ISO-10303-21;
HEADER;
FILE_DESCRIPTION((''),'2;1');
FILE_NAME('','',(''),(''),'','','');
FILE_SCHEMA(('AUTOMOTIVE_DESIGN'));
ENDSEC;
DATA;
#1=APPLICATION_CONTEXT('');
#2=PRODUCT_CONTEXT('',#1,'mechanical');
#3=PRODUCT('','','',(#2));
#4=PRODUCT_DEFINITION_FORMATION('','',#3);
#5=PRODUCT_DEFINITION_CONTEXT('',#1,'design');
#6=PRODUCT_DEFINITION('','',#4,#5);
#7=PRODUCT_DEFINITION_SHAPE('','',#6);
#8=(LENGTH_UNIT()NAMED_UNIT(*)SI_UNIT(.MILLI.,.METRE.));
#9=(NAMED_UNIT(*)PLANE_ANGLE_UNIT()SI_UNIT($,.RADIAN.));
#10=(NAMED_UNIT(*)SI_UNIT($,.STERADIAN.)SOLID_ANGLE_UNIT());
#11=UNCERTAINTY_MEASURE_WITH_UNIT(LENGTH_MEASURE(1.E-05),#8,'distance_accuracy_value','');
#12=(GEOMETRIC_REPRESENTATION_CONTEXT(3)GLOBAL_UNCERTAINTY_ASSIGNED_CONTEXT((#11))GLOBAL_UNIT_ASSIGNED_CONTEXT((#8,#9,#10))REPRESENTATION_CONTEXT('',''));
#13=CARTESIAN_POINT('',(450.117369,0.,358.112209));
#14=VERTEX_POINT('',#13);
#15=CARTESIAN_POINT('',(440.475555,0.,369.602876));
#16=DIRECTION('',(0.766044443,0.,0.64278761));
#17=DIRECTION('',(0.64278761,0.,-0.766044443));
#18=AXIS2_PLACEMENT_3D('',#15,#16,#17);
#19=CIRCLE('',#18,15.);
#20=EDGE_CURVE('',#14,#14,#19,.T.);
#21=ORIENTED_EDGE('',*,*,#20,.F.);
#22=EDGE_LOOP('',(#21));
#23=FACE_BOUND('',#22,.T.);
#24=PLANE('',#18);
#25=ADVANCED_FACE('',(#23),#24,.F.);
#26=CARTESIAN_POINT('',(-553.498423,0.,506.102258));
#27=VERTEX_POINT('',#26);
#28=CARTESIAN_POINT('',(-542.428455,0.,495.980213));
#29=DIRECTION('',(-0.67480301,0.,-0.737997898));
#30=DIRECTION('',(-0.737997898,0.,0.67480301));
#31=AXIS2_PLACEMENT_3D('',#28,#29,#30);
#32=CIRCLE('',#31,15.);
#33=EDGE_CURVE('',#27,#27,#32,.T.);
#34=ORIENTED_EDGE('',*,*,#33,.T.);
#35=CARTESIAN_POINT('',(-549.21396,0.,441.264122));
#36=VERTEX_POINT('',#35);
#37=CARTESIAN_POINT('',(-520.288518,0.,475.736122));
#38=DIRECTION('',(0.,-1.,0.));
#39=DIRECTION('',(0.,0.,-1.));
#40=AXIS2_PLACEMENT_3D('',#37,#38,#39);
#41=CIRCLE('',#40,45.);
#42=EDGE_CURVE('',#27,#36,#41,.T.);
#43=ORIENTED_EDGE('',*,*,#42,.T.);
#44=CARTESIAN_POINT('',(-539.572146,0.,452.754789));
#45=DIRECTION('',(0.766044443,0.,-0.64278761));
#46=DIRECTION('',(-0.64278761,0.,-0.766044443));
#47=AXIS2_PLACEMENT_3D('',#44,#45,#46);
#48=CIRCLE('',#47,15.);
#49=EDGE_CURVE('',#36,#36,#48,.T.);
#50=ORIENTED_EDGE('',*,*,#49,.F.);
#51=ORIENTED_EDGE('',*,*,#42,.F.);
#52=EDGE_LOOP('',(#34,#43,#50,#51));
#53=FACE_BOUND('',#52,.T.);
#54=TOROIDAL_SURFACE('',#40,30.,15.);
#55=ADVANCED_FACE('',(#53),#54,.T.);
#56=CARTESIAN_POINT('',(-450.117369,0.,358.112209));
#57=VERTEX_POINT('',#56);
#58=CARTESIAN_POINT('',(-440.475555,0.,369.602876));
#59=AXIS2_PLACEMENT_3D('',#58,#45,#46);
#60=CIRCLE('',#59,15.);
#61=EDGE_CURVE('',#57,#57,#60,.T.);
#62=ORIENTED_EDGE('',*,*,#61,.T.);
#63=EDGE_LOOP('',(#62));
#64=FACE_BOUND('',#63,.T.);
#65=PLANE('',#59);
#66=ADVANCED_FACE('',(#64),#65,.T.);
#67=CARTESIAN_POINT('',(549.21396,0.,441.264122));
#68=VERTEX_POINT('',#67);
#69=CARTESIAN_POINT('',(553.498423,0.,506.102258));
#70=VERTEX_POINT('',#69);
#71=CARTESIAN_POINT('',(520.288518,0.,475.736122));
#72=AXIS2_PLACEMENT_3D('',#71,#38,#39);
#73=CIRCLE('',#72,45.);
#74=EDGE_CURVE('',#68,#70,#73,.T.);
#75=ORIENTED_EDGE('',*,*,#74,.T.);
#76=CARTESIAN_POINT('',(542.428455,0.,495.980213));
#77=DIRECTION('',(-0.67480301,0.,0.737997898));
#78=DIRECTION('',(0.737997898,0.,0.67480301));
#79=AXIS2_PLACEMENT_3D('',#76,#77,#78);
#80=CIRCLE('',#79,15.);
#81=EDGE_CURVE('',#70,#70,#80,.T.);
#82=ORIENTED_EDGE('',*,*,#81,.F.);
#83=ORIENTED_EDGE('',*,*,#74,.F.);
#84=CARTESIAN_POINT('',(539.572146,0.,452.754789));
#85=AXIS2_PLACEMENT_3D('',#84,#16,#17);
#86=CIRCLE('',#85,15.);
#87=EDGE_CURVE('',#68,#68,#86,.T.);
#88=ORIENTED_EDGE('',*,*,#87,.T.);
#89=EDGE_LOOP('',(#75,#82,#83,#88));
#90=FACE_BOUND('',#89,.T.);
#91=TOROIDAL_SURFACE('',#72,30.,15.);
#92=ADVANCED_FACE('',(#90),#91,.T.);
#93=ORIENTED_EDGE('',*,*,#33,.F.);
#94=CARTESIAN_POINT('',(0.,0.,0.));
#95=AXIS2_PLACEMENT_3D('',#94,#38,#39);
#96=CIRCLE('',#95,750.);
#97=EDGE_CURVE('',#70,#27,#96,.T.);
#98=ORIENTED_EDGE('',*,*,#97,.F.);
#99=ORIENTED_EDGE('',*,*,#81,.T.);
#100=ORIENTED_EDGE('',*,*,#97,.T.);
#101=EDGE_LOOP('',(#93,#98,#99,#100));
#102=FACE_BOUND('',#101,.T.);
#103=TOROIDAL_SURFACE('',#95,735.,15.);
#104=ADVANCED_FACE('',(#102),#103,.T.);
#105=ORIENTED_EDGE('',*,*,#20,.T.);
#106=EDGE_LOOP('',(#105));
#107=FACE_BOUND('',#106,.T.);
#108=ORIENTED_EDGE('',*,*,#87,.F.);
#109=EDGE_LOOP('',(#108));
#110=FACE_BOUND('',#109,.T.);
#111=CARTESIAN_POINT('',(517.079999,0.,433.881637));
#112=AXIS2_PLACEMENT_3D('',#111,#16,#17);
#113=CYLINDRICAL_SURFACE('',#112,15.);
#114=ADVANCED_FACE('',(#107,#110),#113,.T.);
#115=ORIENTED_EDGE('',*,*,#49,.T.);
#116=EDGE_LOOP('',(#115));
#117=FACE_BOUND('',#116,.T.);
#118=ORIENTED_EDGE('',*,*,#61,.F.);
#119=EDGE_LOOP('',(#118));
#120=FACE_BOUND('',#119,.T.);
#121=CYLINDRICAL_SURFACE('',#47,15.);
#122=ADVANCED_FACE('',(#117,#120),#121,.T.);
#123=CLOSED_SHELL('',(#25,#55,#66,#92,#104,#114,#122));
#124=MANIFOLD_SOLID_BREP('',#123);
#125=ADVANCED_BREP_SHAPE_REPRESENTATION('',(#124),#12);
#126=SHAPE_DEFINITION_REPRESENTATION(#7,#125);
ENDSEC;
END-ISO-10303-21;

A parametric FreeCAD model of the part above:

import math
import FreeCAD as App
import Part
import Sketcher
Q = App.Units.Quantity

doc = App.newDocument("Part")
body = doc.addObject("PartDesign::Body", "Body")

sketch1 = body.newObject("Sketcher::SketchObject", "Sketch")
sketch1.Placement = App.Placement(App.Vector(517.079999, 0, 433.881637), App.Rotation(App.Vector(0.64278761, 0, -0.766044443), App.Vector(0, 1, 0), App.Vector(0.766044443, 0, 0.64278761), "ZXY"))
sketch1.addGeometry(Part.Circle(App.Vector(0, 0, 0), App.Vector(0, 0, 1), 15), False)
sketch1.addConstraint([
    Sketcher.Constraint("Coincident", 0, 3, -1, 1),
    Sketcher.Constraint("Diameter", 0, Q("30 mm")),
])

sketch2 = body.newObject("Sketcher::SketchObject", "Sketch001")
sketch2.AttachmentSupport = (doc.getObject("XZ_Plane"), [""])
sketch2.MapMode = "FlatFace"
sketch2.addGeometry([
    Part.LineSegment(App.Vector(517, 434, 0), App.Vector(540, 453, 0)),
    Part.ArcOfCircle(Part.Circle(App.Vector(520, 476, 0), App.Vector(0, 0, 1), 30), math.radians(-50), math.radians(42)),
    Part.ArcOfCircle(Part.Circle(App.Vector(0, 0, 0), App.Vector(0, 0, 1), 735), math.radians(42), math.radians(138)),
    Part.ArcOfCircle(Part.Circle(App.Vector(-520, 476, 0), App.Vector(0, 0, 1), 30), math.radians(138), math.radians(230)),
    Part.LineSegment(App.Vector(-540, 453, 0), App.Vector(-517, 434, 0)),
], False)
sketch2.addConstraint([
    Sketcher.Constraint("Tangent", 0, 2, 1, 1),
    Sketcher.Constraint("Tangent", 1, 2, 2, 1),
    Sketcher.Constraint("Tangent", 2, 2, 3, 1),
    Sketcher.Constraint("Tangent", 3, 2, 4, 1),
    Sketcher.Constraint("Coincident", 2, 3, -1, 1),
    Sketcher.Constraint("Equal", 1, 3),
    Sketcher.Constraint("Symmetric", 0, 2, 3, 2, -2),
    Sketcher.Constraint("Horizontal", 0, 1, 4, 2),
    Sketcher.Constraint("Radius", 1, Q("30 mm")),
    Sketcher.Constraint("Radius", 2, Q("735 mm")),
    Sketcher.Constraint("Angle", 0, Q("40 deg")),
    Sketcher.Constraint("DistanceX", -1, 1, 0, 1, Q("517.079999 mm")),
    Sketcher.Constraint("DistanceX", -1, 1, 1, 3, Q("520.288518 mm")),
])
doc.recompute()

additivepipe = body.newObject("PartDesign::AdditivePipe", "AdditivePipe")
additivepipe.Profile = sketch1
additivepipe.Spine = (sketch2, ["Edge1", "Edge2", "Edge3", "Edge4", "Edge5"])

sketch3 = body.newObject("Sketcher::SketchObject", "Sketch002")
sketch3.Placement = App.Placement(App.Vector(-440.475555, 0, 369.602876), App.Rotation(App.Vector(-0.64278761, 0, -0.766044443), App.Vector(0, 1, 0), App.Vector(0.766044443, 0, -0.64278761), "ZXY"))
sketch3.addGeometry(Part.Circle(App.Vector(0, 0, 0), App.Vector(0, 0, 1), 15), False)
sketch3.addConstraint([
    Sketcher.Constraint("Coincident", 0, 3, -1, 1),
    Sketcher.Constraint("Diameter", 0, Q("30 mm")),
])
pad1 = body.newObject("PartDesign::Pad", "Pad")
pad1.Profile = sketch3
pad1.Length = 100
pad1.Reversed = True

sketch4 = body.newObject("Sketcher::SketchObject", "Sketch003")
sketch4.Placement = App.Placement(App.Vector(517.079999, 0, 433.881637), App.Rotation(App.Vector(0.64278761, 0, -0.766044443), App.Vector(0, 1, 0), App.Vector(0.766044443, 0, 0.64278761), "ZXY"))
sketch4.addGeometry(Part.Circle(App.Vector(0, 0, 0), App.Vector(0, 0, 1), 15), False)
sketch4.addConstraint([
    Sketcher.Constraint("Coincident", 0, 3, -1, 1),
    Sketcher.Constraint("Diameter", 0, Q("30 mm")),
])
pad2 = body.newObject("PartDesign::Pad", "Pad001")
pad2.Profile = sketch4
pad2.Length = 100
pad2.Reversed = True

doc.recompute()
